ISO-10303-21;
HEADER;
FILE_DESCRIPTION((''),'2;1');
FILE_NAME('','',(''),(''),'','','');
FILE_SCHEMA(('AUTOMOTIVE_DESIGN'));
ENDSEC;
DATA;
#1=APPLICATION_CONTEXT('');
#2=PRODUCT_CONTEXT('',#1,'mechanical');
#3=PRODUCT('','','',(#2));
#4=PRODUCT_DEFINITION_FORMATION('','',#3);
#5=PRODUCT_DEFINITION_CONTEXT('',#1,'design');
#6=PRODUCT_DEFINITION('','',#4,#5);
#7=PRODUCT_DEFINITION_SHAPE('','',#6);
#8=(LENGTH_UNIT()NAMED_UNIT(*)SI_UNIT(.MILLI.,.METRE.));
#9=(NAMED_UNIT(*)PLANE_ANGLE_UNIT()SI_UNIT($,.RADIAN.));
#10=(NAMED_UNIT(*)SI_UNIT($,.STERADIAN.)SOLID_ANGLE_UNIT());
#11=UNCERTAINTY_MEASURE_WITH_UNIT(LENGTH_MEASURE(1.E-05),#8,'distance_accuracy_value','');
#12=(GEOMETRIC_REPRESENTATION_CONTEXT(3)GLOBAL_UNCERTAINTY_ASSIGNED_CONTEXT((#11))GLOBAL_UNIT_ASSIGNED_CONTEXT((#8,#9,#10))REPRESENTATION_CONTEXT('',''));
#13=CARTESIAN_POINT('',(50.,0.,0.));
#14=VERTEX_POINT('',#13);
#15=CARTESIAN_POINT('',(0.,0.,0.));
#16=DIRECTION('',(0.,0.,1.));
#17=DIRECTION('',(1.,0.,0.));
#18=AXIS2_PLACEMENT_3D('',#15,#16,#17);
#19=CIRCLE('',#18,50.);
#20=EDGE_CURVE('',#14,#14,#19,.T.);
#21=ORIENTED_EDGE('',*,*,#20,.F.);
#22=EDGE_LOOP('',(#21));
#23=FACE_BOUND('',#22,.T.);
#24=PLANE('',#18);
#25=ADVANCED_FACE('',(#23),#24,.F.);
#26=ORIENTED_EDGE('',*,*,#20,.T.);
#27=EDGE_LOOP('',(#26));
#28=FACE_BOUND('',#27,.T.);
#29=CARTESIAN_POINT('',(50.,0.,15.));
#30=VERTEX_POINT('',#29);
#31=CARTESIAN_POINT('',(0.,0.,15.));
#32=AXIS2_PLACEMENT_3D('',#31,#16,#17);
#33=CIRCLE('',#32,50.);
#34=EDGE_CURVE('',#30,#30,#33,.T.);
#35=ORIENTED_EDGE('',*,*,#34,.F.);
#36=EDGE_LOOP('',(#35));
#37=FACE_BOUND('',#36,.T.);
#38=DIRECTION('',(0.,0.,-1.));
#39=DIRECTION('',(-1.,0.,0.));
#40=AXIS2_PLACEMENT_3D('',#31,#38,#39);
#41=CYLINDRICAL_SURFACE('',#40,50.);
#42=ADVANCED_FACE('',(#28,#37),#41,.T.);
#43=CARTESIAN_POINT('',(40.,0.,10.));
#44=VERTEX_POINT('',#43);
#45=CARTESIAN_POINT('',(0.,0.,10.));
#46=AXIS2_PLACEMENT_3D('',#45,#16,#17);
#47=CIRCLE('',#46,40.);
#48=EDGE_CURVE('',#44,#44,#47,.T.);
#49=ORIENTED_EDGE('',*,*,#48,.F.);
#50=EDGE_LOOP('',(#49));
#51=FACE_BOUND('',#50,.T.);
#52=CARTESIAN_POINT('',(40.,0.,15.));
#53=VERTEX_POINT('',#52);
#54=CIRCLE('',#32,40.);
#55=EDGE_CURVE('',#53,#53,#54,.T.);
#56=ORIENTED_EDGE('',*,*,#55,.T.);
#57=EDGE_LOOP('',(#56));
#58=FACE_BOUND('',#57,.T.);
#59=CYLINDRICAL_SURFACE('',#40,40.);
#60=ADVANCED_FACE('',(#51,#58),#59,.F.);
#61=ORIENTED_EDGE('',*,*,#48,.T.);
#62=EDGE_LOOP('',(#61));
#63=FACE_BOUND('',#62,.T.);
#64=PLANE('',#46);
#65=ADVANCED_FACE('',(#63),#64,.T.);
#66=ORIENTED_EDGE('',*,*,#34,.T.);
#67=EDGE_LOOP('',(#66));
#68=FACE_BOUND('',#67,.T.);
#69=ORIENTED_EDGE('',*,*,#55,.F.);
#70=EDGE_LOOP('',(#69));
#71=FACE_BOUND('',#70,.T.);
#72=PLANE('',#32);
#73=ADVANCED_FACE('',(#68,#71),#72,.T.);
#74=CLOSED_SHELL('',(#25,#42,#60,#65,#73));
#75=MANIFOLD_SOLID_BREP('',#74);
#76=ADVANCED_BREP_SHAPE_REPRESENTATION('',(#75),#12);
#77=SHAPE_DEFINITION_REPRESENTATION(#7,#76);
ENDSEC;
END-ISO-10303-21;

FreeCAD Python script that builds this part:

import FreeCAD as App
import Part
import Sketcher

V = App.Vector


def faces_at(feature, points):
    """Names of the faces that lie closest to the given points."""
    faces = feature.Shape.Faces
    near = lambda p: min(range(len(faces)), key=lambda i: faces[i].distToShape(Part.Vertex(*p))[0])
    return sorted({f"Face{near(p) + 1}" for p in points})

doc = App.newDocument("Part")
body = doc.addObject("PartDesign::Body", "Body")

# Sketch on XY plane
sketch1 = body.newObject("Sketcher::SketchObject", "Sketch")
sketch1.AttachmentSupport = (doc.getObject("XY_Plane"), [""])
sketch1.MapMode = "FlatFace"
sketch1.addGeometry(Part.Circle(V(0, 0, 0), V(0, 0, 1), 50), False)
sketch1.addConstraint(Sketcher.Constraint("Coincident", 0, 3, -1, 1))
sketch1.addConstraint(Sketcher.Constraint("Diameter", 0, 100.0))
pad1 = body.newObject("PartDesign::Pad", "Pad")
pad1.Profile = sketch1
pad1.Length = 15
doc.recompute()

thickness = body.newObject("PartDesign::Thickness", "Thickness")
thickness.Base = (pad1, faces_at(pad1, [(0, 0, 15)]))
thickness.Value = 10
thickness.Reversed = True
thickness.Join = "Intersection"

doc.recompute()
